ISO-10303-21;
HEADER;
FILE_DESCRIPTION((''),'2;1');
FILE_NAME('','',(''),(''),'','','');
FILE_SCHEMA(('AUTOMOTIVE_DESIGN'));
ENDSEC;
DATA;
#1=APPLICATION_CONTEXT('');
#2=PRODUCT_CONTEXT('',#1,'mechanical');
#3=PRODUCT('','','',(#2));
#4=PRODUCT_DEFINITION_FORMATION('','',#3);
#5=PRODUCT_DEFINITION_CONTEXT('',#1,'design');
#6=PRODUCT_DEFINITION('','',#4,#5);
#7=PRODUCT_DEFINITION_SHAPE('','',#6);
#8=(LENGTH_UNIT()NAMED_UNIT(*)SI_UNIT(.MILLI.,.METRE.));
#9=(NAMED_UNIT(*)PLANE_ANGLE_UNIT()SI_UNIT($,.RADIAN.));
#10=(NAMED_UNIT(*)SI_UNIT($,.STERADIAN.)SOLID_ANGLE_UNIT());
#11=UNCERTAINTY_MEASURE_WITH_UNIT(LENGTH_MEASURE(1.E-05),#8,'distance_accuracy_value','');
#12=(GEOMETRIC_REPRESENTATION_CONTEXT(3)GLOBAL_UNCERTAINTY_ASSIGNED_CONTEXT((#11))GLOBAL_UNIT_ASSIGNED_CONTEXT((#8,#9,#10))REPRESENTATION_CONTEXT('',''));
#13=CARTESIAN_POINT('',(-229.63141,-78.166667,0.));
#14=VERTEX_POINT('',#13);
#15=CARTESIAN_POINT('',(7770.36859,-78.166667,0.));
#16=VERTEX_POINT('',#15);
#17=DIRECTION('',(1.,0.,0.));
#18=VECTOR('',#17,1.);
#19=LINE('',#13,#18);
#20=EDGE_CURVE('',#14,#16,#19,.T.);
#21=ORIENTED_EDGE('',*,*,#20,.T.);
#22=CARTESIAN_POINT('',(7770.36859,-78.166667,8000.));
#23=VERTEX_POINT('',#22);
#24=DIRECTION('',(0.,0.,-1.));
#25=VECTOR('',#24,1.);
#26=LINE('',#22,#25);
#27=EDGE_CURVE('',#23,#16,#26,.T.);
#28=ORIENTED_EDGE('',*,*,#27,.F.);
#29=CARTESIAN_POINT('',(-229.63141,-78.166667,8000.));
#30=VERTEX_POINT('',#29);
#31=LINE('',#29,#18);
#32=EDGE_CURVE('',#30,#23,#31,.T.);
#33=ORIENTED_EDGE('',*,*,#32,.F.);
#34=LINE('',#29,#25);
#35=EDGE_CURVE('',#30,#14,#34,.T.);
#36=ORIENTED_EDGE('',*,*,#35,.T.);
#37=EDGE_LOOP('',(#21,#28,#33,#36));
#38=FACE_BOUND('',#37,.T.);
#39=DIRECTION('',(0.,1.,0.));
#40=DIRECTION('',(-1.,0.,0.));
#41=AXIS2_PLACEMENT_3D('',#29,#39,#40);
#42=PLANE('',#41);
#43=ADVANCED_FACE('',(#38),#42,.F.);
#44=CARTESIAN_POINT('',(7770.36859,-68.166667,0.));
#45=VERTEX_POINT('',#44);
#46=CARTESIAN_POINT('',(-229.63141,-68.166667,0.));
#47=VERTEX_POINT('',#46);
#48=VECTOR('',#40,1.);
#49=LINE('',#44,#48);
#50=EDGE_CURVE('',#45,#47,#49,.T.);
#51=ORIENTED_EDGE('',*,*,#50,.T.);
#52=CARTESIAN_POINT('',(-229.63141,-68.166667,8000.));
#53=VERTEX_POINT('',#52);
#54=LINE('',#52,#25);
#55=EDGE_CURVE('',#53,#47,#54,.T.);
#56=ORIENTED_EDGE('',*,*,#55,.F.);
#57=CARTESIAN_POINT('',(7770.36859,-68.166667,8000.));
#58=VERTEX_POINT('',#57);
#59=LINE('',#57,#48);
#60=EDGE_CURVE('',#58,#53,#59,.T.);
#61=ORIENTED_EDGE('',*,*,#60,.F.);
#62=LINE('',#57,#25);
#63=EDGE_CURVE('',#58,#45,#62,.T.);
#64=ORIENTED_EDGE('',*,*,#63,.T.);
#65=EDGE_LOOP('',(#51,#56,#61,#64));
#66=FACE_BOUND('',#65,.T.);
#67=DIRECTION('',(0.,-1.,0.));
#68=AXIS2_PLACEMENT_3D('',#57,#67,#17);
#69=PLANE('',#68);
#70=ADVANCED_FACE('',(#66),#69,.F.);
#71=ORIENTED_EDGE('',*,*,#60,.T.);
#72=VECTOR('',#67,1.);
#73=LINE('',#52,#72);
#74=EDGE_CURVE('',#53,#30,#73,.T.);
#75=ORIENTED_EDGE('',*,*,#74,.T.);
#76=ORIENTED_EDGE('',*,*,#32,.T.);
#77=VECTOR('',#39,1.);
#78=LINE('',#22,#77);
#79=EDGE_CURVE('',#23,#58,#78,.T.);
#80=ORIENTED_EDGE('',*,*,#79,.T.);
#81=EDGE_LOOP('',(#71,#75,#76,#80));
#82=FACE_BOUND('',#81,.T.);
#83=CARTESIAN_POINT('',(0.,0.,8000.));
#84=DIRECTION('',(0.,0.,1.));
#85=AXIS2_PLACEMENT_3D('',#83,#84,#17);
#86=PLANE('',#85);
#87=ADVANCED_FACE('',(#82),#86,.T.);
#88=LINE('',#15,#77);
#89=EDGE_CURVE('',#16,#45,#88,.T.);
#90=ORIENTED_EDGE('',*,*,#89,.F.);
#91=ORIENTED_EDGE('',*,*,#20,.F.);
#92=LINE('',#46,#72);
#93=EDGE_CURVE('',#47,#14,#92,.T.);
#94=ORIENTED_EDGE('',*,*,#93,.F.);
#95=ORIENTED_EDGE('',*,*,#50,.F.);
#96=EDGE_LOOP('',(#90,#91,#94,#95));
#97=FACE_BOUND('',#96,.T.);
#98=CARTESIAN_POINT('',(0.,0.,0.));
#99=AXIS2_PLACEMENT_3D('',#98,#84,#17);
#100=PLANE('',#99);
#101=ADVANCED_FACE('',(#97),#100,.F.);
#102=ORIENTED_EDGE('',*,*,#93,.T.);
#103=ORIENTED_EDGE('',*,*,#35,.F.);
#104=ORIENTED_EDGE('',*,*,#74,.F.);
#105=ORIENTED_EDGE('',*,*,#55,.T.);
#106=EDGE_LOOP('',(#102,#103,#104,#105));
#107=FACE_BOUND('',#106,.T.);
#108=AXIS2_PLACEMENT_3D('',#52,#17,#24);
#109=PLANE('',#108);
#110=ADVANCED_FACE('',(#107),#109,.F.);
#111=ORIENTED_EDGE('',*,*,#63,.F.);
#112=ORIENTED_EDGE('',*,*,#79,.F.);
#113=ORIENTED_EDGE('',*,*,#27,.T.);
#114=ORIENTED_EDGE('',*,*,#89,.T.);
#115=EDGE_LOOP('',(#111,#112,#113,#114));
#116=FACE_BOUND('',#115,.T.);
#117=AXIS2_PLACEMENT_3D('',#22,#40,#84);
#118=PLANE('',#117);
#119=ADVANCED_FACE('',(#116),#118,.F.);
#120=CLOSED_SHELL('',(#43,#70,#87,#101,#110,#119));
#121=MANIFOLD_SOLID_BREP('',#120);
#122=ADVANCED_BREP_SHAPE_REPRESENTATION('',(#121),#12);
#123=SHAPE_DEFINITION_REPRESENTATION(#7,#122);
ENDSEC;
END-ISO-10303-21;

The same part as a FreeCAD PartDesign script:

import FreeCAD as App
import Part
import Sketcher
Q = App.Units.Quantity

doc = App.newDocument("Part")
body = doc.addObject("PartDesign::Body", "Body")

# Sketch on XY plane
sketch1 = body.newObject("Sketcher::SketchObject", "Sketch")
sketch1.AttachmentSupport = (doc.getObject("XY_Plane"), [""])
sketch1.MapMode = "FlatFace"
sketch1.addGeometry(Part.LineSegment(App.Vector(-230, -68, 0), App.Vector(-230, -78, 0)), False)
sketch1.addGeometry(Part.LineSegment(App.Vector(-230, -78, 0), App.Vector(7770, -78, 0)), False)
sketch1.addGeometry(Part.LineSegment(App.Vector(7770, -78, 0), App.Vector(7770, -68, 0)), False)
sketch1.addGeometry(Part.LineSegment(App.Vector(7770, -68, 0), App.Vector(-230, -68, 0)), False)
sketch1.addConstraint(Sketcher.Constraint("Coincident", 0, 2, 1, 1))
sketch1.addConstraint(Sketcher.Constraint("Coincident", 1, 2, 2, 1))
sketch1.addConstraint(Sketcher.Constraint("Coincident", 2, 2, 3, 1))
sketch1.addConstraint(Sketcher.Constraint("Coincident", 3, 2, 0, 1))
sketch1.addConstraint(Sketcher.Constraint("Vertical", 0))
sketch1.addConstraint(Sketcher.Constraint("Horizontal", 1))
sketch1.addConstraint(Sketcher.Constraint("Vertical", 2))
sketch1.addConstraint(Sketcher.Constraint("Horizontal", 3))
sketch1.addConstraint(Sketcher.Constraint("DistanceX", 1, 1, 1, 2, Q("8000 mm")))
sketch1.addConstraint(Sketcher.Constraint("DistanceY", 0, 2, 0, 1, Q("10 mm")))
sketch1.addConstraint(Sketcher.Constraint("DistanceX", 0, 2, -1, 1, Q("229.63141 mm")))
sketch1.addConstraint(Sketcher.Constraint("DistanceY", 0, 2, -1, 1, Q("78.166667 mm")))
pad1 = body.newObject("PartDesign::Pad", "Pad")
pad1.Profile = sketch1
pad1.Length = 8000

doc.recompute()
